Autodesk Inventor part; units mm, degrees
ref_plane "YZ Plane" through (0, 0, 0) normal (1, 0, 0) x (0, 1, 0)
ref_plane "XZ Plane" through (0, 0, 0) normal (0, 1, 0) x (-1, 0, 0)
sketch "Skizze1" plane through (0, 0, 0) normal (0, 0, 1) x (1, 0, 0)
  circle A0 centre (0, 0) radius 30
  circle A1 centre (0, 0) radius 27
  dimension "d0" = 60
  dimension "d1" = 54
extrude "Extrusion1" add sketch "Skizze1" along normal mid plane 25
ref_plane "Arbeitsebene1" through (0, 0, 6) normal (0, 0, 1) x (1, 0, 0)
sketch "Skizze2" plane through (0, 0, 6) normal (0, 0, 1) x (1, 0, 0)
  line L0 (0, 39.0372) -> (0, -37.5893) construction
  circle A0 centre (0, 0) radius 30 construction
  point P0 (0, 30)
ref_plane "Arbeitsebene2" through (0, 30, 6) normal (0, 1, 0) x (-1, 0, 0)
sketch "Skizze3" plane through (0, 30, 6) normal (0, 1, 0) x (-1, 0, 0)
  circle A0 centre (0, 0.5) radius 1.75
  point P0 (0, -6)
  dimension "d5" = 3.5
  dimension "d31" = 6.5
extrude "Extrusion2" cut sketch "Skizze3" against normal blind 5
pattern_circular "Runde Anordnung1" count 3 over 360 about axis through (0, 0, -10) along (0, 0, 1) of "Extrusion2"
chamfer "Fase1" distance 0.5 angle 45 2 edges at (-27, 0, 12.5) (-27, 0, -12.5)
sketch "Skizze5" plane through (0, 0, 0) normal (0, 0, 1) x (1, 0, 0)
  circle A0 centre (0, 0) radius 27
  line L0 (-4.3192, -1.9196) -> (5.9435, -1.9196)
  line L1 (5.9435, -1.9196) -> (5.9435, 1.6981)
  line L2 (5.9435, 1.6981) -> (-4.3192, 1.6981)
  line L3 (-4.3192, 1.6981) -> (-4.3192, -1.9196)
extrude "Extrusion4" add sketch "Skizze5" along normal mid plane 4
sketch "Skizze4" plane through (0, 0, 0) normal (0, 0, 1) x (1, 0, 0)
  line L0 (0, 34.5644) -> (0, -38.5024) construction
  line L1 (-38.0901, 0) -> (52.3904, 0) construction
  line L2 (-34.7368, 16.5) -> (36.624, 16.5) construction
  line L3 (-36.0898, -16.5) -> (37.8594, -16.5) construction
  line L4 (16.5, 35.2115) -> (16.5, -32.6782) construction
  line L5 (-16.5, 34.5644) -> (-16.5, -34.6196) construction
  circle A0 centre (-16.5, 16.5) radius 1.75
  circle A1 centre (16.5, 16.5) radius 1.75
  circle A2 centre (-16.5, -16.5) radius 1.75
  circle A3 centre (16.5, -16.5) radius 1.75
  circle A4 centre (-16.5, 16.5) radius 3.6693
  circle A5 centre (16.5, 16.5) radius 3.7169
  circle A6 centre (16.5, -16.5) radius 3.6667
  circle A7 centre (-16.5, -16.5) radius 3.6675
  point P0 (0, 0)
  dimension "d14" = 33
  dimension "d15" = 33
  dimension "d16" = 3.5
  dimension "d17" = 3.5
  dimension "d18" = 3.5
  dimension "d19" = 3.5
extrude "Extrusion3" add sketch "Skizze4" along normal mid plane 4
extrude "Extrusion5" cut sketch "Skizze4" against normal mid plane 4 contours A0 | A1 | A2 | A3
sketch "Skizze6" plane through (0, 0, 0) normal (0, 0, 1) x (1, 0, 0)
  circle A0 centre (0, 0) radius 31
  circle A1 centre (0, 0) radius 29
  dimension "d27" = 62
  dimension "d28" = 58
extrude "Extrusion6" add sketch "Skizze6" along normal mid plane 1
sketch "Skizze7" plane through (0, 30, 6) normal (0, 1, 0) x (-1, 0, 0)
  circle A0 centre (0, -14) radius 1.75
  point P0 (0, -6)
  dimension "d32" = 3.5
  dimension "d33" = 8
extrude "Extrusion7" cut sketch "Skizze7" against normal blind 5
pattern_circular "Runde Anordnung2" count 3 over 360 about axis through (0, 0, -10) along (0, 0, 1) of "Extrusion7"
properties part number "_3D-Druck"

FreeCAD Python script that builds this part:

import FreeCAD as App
import Part
import Sketcher


def edges_at(feature, points):
    """Names of the edges that pass closest to the given points."""
    edges = feature.Shape.Edges
    near = lambda p: min(range(len(edges)), key=lambda i: edges[i].distToShape(Part.Vertex(*p))[0])
    return sorted({f"Edge{near(p) + 1}" for p in points})


def add_polygon(sketch, points):
    """Adds a closed chain of lines whose ends are joined by coincident constraints."""
    first, n = sketch.GeometryCount, len(points)
    for a, b in zip(points, points[1:] + points[:1]):
        sketch.addGeometry(Part.LineSegment(App.Vector(*a, 0), App.Vector(*b, 0)), False)
    for i in range(n):
        sketch.addConstraint(Sketcher.Constraint("Coincident", first + i, 2, first + (i + 1) % n, 1))

doc = App.newDocument("Part")
body = doc.addObject("PartDesign::Body", "Body")

# Sketch on XY plane
sketch1 = body.newObject("Sketcher::SketchObject", "Sketch")
sketch1.AttachmentSupport = (doc.getObject("XY_Plane"), [""])
sketch1.MapMode = "FlatFace"
sketch1.addGeometry(Part.Circle(App.Vector(0, 0, 0), App.Vector(0, 0, 1), 30), False)
sketch1.addGeometry(Part.Circle(App.Vector(0, 0, 0), App.Vector(0, 0, 1), 27), False)
sketch1.addConstraint(Sketcher.Constraint("Coincident", 0, 3, -1, 1))
sketch1.addConstraint(Sketcher.Constraint("Coincident", 1, 3, -1, 1))
sketch1.addConstraint(Sketcher.Constraint("Diameter", 0, 60.0))
sketch1.addConstraint(Sketcher.Constraint("Diameter", 1, 54.0))
pad1 = body.newObject("PartDesign::Pad", "Pad")
pad1.Profile = sketch1
pad1.Length = 25
pad1.Midplane = True

# Sketch on XZ plane
sketch2 = body.newObject("Sketcher::SketchObject", "Sketch001")
sketch2.AttachmentSupport = (doc.getObject("XZ_Plane"), [""])
sketch2.MapMode = "FlatFace"
sketch2.AttachmentOffset = App.Placement(App.Vector(0, 0, -30), App.Rotation())
sketch2.addGeometry(Part.Circle(App.Vector(0, 6.5, 0), App.Vector(0, 0, 1), 1.75), False)
sketch2.addConstraint(Sketcher.Constraint("PointOnObject", 0, 3, -2))
sketch2.addConstraint(Sketcher.Constraint("Diameter", 0, 3.5))
sketch2.addConstraint(Sketcher.Constraint("DistanceY", -1, 1, 0, 3, 6.5))
pocket1 = body.newObject("PartDesign::Pocket", "Pocket")
pocket1.Profile = sketch2
pocket1.Length = 5
pocket1.Reversed = True
doc.recompute()

polarpattern = body.newObject("PartDesign::PolarPattern", "PolarPattern")
polarpattern.Originals = [pocket1]
polarpattern.Axis = (doc.getObject("Z_Axis"), [""])
polarpattern.Angle = 360
polarpattern.Occurrences = 3
body.Tip = polarpattern
doc.recompute()

chamfer = body.newObject("PartDesign::Chamfer", "Chamfer")
chamfer.Base = (polarpattern, edges_at(polarpattern, [(-27, 0, 12.5), (-27, 0, -12.5)]))
chamfer.Size = 0.5

# Sketch on XY plane
sketch3 = body.newObject("Sketcher::SketchObject", "Sketch002")
sketch3.AttachmentSupport = (doc.getObject("XY_Plane"), [""])
sketch3.MapMode = "FlatFace"
sketch3.addGeometry(Part.Circle(App.Vector(0, 0, 0), App.Vector(0, 0, 1), 27), False)  # 0
add_polygon(sketch3, [(5.9435, -1.9196), (-4.3192, -1.9196), (-4.3192, 1.6981), (5.9435, 1.6981)])  # lines 1-4
sketch3.addConstraint(Sketcher.Constraint("Horizontal", 1))
sketch3.addConstraint(Sketcher.Constraint("Vertical", 2))
sketch3.addConstraint(Sketcher.Constraint("Horizontal", 3))
sketch3.addConstraint(Sketcher.Constraint("Vertical", 4))
sketch3.addConstraint(Sketcher.Constraint("Coincident", 0, 3, -1, 1))
sketch3.addConstraint(Sketcher.Constraint("Diameter", 0, 54.0))
sketch3.addConstraint(Sketcher.Constraint("DistanceX", 1, 2, 1, 1, 10.2627))
sketch3.addConstraint(Sketcher.Constraint("DistanceY", 2, 1, 2, 2, 3.6177))
sketch3.addConstraint(Sketcher.Constraint("DistanceY", -1, 1, 2, 2, 1.698))
sketch3.addConstraint(Sketcher.Constraint("DistanceX", 1, 2, -1, 1, 4.3192))
pad2 = body.newObject("PartDesign::Pad", "Pad001")
pad2.Profile = sketch3
pad2.Length = 4
pad2.Midplane = True

# Sketch on XY plane
sketch4 = body.newObject("Sketcher::SketchObject", "Sketch003")
sketch4.AttachmentSupport = (doc.getObject("XY_Plane"), [""])
sketch4.MapMode = "FlatFace"
sketch4.addGeometry(Part.Circle(App.Vector(-16.5, 16.5, 0), App.Vector(0, 0, 1), 3.6693), False)
sketch4.addGeometry(Part.Circle(App.Vector(-16.5, 16.5, 0), App.Vector(0, 0, 1), 1.75), False)
sketch4.addGeometry(Part.Circle(App.Vector(16.5, 16.5, 0), App.Vector(0, 0, 1), 3.7169), False)
sketch4.addGeometry(Part.Circle(App.Vector(16.5, 16.5, 0), App.Vector(0, 0, 1), 1.75), False)
sketch4.addGeometry(Part.Circle(App.Vector(16.5, -16.5, 0), App.Vector(0, 0, 1), 3.6667), False)
sketch4.addGeometry(Part.Circle(App.Vector(16.5, -16.5, 0), App.Vector(0, 0, 1), 1.75), False)
sketch4.addGeometry(Part.Circle(App.Vector(-16.5, -16.5, 0), App.Vector(0, 0, 1), 3.6675), False)
sketch4.addGeometry(Part.Circle(App.Vector(-16.5, -16.5, 0), App.Vector(0, 0, 1), 1.75), False)
sketch4.addConstraint(Sketcher.Constraint("Coincident", 1, 3, 0, 3))
sketch4.addConstraint(Sketcher.Constraint("Coincident", 3, 3, 2, 3))
sketch4.addConstraint(Sketcher.Constraint("Coincident", 5, 3, 4, 3))
sketch4.addConstraint(Sketcher.Constraint("Coincident", 7, 3, 6, 3))
sketch4.addConstraint(Sketcher.Constraint("Equal", 1, 3))
sketch4.addConstraint(Sketcher.Constraint("Equal", 3, 5))
sketch4.addConstraint(Sketcher.Constraint("Equal", 5, 7))
sketch4.addConstraint(Sketcher.Constraint("Symmetric", 0, 3, 4, 3, -1, 1))
sketch4.addConstraint(Sketcher.Constraint("Symmetric", 2, 3, 6, 3, -1, 1))
sketch4.addConstraint(Sketcher.Constraint("Symmetric", 0, 3, 2, 3, -2))
sketch4.addConstraint(Sketcher.Constraint("Diameter", 1, 3.5))
sketch4.addConstraint(Sketcher.Constraint("DistanceX", 0, 3, 2, 3, 33.0))
sketch4.addConstraint(Sketcher.Constraint("DistanceY", 4, 3, 2, 3, 33.0))
sketch4.addConstraint(Sketcher.Constraint("Diameter", 6, 7.335))
sketch4.addConstraint(Sketcher.Constraint("Diameter", 0, 7.3386))
sketch4.addConstraint(Sketcher.Constraint("Diameter", 2, 7.4338))
sketch4.addConstraint(Sketcher.Constraint("Diameter", 4, 7.3334))
pad3 = body.newObject("PartDesign::Pad", "Pad002")
pad3.Profile = sketch4
pad3.Length = 4
pad3.Midplane = True

# Sketch on XY plane
sketch5 = body.newObject("Sketcher::SketchObject", "Sketch004")
sketch5.AttachmentSupport = (doc.getObject("XY_Plane"), [""])
sketch5.MapMode = "FlatFace"
sketch5.addGeometry(Part.Circle(App.Vector(-16.5, 16.5, 0), App.Vector(0, 0, 1), 1.75), False)
sketch5.addGeometry(Part.Circle(App.Vector(16.5, 16.5, 0), App.Vector(0, 0, 1), 1.75), False)
sketch5.addGeometry(Part.Circle(App.Vector(-16.5, -16.5, 0), App.Vector(0, 0, 1), 1.75), False)
sketch5.addGeometry(Part.Circle(App.Vector(16.5, -16.5, 0), App.Vector(0, 0, 1), 1.75), False)
sketch5.addConstraint(Sketcher.Constraint("Equal", 0, 1))
sketch5.addConstraint(Sketcher.Constraint("Equal", 1, 2))
sketch5.addConstraint(Sketcher.Constraint("Equal", 2, 3))
sketch5.addConstraint(Sketcher.Constraint("Symmetric", 1, 3, 2, 3, -1, 1))
sketch5.addConstraint(Sketcher.Constraint("Symmetric", 0, 3, 3, 3, -1, 1))
sketch5.addConstraint(Sketcher.Constraint("Symmetric", 0, 3, 1, 3, -2))
sketch5.addConstraint(Sketcher.Constraint("Diameter", 0, 3.5))
sketch5.addConstraint(Sketcher.Constraint("DistanceX", 0, 3, 1, 3, 33.0))
sketch5.addConstraint(Sketcher.Constraint("DistanceY", 2, 3, 0, 3, 33.0))
pocket2 = body.newObject("PartDesign::Pocket", "Pocket001")
pocket2.Profile = sketch5
pocket2.Length = 4
pocket2.Midplane = True

# Sketch on XY plane
sketch6 = body.newObject("Sketcher::SketchObject", "Sketch005")
sketch6.AttachmentSupport = (doc.getObject("XY_Plane"), [""])
sketch6.MapMode = "FlatFace"
sketch6.addGeometry(Part.Circle(App.Vector(0, 0, 0), App.Vector(0, 0, 1), 31), False)
sketch6.addGeometry(Part.Circle(App.Vector(0, 0, 0), App.Vector(0, 0, 1), 29), False)
sketch6.addConstraint(Sketcher.Constraint("Coincident", 0, 3, -1, 1))
sketch6.addConstraint(Sketcher.Constraint("Coincident", 1, 3, -1, 1))
sketch6.addConstraint(Sketcher.Constraint("Diameter", 0, 62.0))
sketch6.addConstraint(Sketcher.Constraint("Diameter", 1, 58.0))
pad4 = body.newObject("PartDesign::Pad", "Pad003")
pad4.Profile = sketch6
pad4.Length = 1
pad4.Midplane = True

# Sketch on XZ plane
sketch7 = body.newObject("Sketcher::SketchObject", "Sketch006")
sketch7.AttachmentSupport = (doc.getObject("XZ_Plane"), [""])
sketch7.MapMode = "FlatFace"
sketch7.AttachmentOffset = App.Placement(App.Vector(0, 0, -30), App.Rotation())
sketch7.addGeometry(Part.Circle(App.Vector(0, -8, 0), App.Vector(0, 0, 1), 1.75), False)
sketch7.addConstraint(Sketcher.Constraint("PointOnObject", 0, 3, -2))
sketch7.addConstraint(Sketcher.Constraint("Diameter", 0, 3.5))
sketch7.addConstraint(Sketcher.Constraint("DistanceY", 0, 3, -1, 1, 8.0))
pocket3 = body.newObject("PartDesign::Pocket", "Pocket002")
pocket3.Profile = sketch7
pocket3.Length = 5
pocket3.Reversed = True
doc.recompute()

polarpattern2 = body.newObject("PartDesign::PolarPattern", "PolarPattern001")
polarpattern2.Originals = [pocket3]
polarpattern2.Axis = (doc.getObject("Z_Axis"), [""])
polarpattern2.Angle = 360
polarpattern2.Occurrences = 3
body.Tip = polarpattern2

doc.recompute()
